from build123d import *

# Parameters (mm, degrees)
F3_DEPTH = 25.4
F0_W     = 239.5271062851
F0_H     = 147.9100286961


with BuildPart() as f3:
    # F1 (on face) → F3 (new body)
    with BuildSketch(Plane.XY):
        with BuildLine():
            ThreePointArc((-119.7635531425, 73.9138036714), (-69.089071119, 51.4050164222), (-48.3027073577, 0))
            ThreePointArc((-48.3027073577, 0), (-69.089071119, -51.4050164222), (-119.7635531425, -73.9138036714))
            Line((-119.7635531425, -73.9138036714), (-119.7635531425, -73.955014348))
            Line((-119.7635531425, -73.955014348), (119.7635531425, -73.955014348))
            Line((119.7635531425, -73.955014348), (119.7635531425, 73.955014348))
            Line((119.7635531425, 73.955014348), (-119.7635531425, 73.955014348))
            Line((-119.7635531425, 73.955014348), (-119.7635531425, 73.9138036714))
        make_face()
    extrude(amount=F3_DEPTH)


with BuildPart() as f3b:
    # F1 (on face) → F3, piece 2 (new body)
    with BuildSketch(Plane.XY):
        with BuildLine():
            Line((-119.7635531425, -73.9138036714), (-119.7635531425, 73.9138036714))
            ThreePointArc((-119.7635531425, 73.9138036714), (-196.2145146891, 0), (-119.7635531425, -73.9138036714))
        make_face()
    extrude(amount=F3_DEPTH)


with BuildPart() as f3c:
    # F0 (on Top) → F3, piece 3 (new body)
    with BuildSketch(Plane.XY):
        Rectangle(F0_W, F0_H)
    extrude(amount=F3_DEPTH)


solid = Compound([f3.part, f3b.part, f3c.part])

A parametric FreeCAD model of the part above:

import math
import FreeCAD as App
import Part
import Sketcher

V = App.Vector
Q = App.Units.Quantity


def add_polygon(sketch, points):
    """Adds a closed chain of lines whose ends are joined by coincident constraints."""
    first, n = sketch.GeometryCount, len(points)
    for a, b in zip(points, points[1:] + points[:1]):
        sketch.addGeometry(Part.LineSegment(App.Vector(*a, 0), App.Vector(*b, 0)), False)
    for i in range(n):
        sketch.addConstraint(Sketcher.Constraint("Coincident", first + i, 2, first + (i + 1) % n, 1))

doc = App.newDocument("Part")
params = doc.addObject("Spreadsheet::Sheet", "Params")
for row, (alias, value) in enumerate([
    ("pad1_length", "1 in"),
    ("pad2_length", "1 in"),
    ("pad3_length", "1 in"),
], start=1):
    params.set(f"A{row}", alias)
    params.set(f"B{row}", "=" + value)
    params.setAlias(f"B{row}", alias)

body = doc.addObject("PartDesign::Body", "Body")

# Sketch on XY plane
sketch1 = doc.addObject("Sketcher::SketchObject", "Sketch")
body.addObject(sketch1)
sketch1.AttachmentSupport = (doc.XY_Plane, [""])
sketch1.MapMode = "FlatFace"
sketch1.addGeometry([
    Part.ArcOfCircle(Part.Circle(V(-122.259, 0, 0), V(0, 0, 1), 73.956), math.radians(0), math.radians(88)),  # 0
    Part.ArcOfCircle(Part.Circle(V(-122.259, 0, 0), V(0, 0, 1), 73.956), math.radians(-88), math.radians(0)),  # 1
    Part.LineSegment(V(-119.764, -73.914, 0), V(-119.764, -73.955, 0)),  # 2
    Part.LineSegment(V(-119.764, -73.955, 0), V(119.764, -73.955, 0)),  # 3
    Part.LineSegment(V(119.764, -73.955, 0), V(119.764, 73.955, 0)),  # 4
    Part.LineSegment(V(119.764, 73.955, 0), V(-119.764, 73.955, 0)),  # 5
    Part.LineSegment(V(-119.764, 73.955, 0), V(-119.764, 73.914, 0)),  # 6
], False)
sketch1.addConstraint([
    Sketcher.Constraint("Tangent", 0, 1, 1, 2),
    Sketcher.Constraint("Coincident", 1, 1, 2, 1),
    Sketcher.Constraint("Coincident", 2, 2, 3, 1),
    Sketcher.Constraint("Coincident", 3, 2, 4, 1),
    Sketcher.Constraint("Coincident", 4, 2, 5, 1),
    Sketcher.Constraint("Coincident", 5, 2, 6, 1),
    Sketcher.Constraint("Coincident", 6, 2, 0, 2),
    Sketcher.Constraint("Vertical", 2),
    Sketcher.Constraint("Horizontal", 3),
    Sketcher.Constraint("Vertical", 4),
    Sketcher.Constraint("Horizontal", 5),
    Sketcher.Constraint("Vertical", 6),
    Sketcher.Constraint("Equal", 0, 1),
    Sketcher.Constraint("Symmetric", 2, 2, 4, 2, -1, 1),
    Sketcher.Constraint("Symmetric", 1, 1, 6, 2, -1),
    Sketcher.Constraint("PointOnObject", 0, 1, -1),
    Sketcher.Constraint("Radius", 0, Q("73.955904 mm")),
    Sketcher.Constraint("DistanceY", 2, 2, 2, 1, Q("0.041211 mm")),
    Sketcher.Constraint("DistanceY", 4, 1, 4, 2, Q("147.910029 mm")),
    Sketcher.Constraint("DistanceX", 3, 1, 3, 2, Q("239.527106 mm")),
])
pad1 = doc.addObject("PartDesign::Pad", "Pad")
body.addObject(pad1)
pad1.Profile = sketch1
pad1.setExpression("Length", "Params.pad1_length")
body2 = doc.addObject("PartDesign::Body", "Body001")

# Sketch on XY plane
sketch2 = doc.addObject("Sketcher::SketchObject", "Sketch001")
body2.addObject(sketch2)
sketch2.AttachmentSupport = (doc.getObject("XY_Plane001"), [""])
sketch2.MapMode = "FlatFace"
sketch2.addGeometry([
    Part.LineSegment(V(-120, -74, 0), V(-120, 74, 0)),
    Part.ArcOfCircle(Part.Circle(V(-122, 0, 0), V(0, 0, 1), 74), math.radians(88), math.radians(272)),
], False)
sketch2.addConstraint([
    Sketcher.Constraint("Coincident", 0, 1, 1, 2),
    Sketcher.Constraint("Coincident", 1, 1, 0, 2),
    Sketcher.Constraint("Vertical", 0),
    Sketcher.Constraint("PointOnObject", 1, 3, -1),
    Sketcher.Constraint("Radius", 1, Q("73.955904 mm")),
    Sketcher.Constraint("DistanceY", 0, 1, 0, 2, Q("147.827607 mm")),
    Sketcher.Constraint("DistanceX", 1, 3, -1, 1, Q("122.258611 mm")),
])
pad2 = doc.addObject("PartDesign::Pad", "Pad001")
body2.addObject(pad2)
pad2.Profile = sketch2
pad2.setExpression("Length", "Params.pad2_length")
body3 = doc.addObject("PartDesign::Body", "Body002")

# Sketch on XY plane
sketch3 = doc.addObject("Sketcher::SketchObject", "Sketch002")
body3.addObject(sketch3)
sketch3.AttachmentSupport = (doc.getObject("XY_Plane002"), [""])
sketch3.MapMode = "FlatFace"
add_polygon(sketch3, [(-120, 74), (-120, -74), (120, -74), (120, 74)])  # lines 0-3
sketch3.addConstraint([
    Sketcher.Constraint("Vertical", 0),
    Sketcher.Constraint("Horizontal", 1),
    Sketcher.Constraint("Vertical", 2),
    Sketcher.Constraint("Horizontal", 3),
    Sketcher.Constraint("Symmetric", 0, 2, 2, 2, -1, 1),
    Sketcher.Constraint("DistanceY", 0, 2, 0, 1, Q("147.910029 mm")),
    Sketcher.Constraint("DistanceX", 1, 1, 1, 2, Q("239.527106 mm")),
])
pad3 = doc.addObject("PartDesign::Pad", "Pad002")
body3.addObject(pad3)
pad3.Profile = sketch3
pad3.setExpression("Length", "Params.pad3_length")

doc.recompute()
